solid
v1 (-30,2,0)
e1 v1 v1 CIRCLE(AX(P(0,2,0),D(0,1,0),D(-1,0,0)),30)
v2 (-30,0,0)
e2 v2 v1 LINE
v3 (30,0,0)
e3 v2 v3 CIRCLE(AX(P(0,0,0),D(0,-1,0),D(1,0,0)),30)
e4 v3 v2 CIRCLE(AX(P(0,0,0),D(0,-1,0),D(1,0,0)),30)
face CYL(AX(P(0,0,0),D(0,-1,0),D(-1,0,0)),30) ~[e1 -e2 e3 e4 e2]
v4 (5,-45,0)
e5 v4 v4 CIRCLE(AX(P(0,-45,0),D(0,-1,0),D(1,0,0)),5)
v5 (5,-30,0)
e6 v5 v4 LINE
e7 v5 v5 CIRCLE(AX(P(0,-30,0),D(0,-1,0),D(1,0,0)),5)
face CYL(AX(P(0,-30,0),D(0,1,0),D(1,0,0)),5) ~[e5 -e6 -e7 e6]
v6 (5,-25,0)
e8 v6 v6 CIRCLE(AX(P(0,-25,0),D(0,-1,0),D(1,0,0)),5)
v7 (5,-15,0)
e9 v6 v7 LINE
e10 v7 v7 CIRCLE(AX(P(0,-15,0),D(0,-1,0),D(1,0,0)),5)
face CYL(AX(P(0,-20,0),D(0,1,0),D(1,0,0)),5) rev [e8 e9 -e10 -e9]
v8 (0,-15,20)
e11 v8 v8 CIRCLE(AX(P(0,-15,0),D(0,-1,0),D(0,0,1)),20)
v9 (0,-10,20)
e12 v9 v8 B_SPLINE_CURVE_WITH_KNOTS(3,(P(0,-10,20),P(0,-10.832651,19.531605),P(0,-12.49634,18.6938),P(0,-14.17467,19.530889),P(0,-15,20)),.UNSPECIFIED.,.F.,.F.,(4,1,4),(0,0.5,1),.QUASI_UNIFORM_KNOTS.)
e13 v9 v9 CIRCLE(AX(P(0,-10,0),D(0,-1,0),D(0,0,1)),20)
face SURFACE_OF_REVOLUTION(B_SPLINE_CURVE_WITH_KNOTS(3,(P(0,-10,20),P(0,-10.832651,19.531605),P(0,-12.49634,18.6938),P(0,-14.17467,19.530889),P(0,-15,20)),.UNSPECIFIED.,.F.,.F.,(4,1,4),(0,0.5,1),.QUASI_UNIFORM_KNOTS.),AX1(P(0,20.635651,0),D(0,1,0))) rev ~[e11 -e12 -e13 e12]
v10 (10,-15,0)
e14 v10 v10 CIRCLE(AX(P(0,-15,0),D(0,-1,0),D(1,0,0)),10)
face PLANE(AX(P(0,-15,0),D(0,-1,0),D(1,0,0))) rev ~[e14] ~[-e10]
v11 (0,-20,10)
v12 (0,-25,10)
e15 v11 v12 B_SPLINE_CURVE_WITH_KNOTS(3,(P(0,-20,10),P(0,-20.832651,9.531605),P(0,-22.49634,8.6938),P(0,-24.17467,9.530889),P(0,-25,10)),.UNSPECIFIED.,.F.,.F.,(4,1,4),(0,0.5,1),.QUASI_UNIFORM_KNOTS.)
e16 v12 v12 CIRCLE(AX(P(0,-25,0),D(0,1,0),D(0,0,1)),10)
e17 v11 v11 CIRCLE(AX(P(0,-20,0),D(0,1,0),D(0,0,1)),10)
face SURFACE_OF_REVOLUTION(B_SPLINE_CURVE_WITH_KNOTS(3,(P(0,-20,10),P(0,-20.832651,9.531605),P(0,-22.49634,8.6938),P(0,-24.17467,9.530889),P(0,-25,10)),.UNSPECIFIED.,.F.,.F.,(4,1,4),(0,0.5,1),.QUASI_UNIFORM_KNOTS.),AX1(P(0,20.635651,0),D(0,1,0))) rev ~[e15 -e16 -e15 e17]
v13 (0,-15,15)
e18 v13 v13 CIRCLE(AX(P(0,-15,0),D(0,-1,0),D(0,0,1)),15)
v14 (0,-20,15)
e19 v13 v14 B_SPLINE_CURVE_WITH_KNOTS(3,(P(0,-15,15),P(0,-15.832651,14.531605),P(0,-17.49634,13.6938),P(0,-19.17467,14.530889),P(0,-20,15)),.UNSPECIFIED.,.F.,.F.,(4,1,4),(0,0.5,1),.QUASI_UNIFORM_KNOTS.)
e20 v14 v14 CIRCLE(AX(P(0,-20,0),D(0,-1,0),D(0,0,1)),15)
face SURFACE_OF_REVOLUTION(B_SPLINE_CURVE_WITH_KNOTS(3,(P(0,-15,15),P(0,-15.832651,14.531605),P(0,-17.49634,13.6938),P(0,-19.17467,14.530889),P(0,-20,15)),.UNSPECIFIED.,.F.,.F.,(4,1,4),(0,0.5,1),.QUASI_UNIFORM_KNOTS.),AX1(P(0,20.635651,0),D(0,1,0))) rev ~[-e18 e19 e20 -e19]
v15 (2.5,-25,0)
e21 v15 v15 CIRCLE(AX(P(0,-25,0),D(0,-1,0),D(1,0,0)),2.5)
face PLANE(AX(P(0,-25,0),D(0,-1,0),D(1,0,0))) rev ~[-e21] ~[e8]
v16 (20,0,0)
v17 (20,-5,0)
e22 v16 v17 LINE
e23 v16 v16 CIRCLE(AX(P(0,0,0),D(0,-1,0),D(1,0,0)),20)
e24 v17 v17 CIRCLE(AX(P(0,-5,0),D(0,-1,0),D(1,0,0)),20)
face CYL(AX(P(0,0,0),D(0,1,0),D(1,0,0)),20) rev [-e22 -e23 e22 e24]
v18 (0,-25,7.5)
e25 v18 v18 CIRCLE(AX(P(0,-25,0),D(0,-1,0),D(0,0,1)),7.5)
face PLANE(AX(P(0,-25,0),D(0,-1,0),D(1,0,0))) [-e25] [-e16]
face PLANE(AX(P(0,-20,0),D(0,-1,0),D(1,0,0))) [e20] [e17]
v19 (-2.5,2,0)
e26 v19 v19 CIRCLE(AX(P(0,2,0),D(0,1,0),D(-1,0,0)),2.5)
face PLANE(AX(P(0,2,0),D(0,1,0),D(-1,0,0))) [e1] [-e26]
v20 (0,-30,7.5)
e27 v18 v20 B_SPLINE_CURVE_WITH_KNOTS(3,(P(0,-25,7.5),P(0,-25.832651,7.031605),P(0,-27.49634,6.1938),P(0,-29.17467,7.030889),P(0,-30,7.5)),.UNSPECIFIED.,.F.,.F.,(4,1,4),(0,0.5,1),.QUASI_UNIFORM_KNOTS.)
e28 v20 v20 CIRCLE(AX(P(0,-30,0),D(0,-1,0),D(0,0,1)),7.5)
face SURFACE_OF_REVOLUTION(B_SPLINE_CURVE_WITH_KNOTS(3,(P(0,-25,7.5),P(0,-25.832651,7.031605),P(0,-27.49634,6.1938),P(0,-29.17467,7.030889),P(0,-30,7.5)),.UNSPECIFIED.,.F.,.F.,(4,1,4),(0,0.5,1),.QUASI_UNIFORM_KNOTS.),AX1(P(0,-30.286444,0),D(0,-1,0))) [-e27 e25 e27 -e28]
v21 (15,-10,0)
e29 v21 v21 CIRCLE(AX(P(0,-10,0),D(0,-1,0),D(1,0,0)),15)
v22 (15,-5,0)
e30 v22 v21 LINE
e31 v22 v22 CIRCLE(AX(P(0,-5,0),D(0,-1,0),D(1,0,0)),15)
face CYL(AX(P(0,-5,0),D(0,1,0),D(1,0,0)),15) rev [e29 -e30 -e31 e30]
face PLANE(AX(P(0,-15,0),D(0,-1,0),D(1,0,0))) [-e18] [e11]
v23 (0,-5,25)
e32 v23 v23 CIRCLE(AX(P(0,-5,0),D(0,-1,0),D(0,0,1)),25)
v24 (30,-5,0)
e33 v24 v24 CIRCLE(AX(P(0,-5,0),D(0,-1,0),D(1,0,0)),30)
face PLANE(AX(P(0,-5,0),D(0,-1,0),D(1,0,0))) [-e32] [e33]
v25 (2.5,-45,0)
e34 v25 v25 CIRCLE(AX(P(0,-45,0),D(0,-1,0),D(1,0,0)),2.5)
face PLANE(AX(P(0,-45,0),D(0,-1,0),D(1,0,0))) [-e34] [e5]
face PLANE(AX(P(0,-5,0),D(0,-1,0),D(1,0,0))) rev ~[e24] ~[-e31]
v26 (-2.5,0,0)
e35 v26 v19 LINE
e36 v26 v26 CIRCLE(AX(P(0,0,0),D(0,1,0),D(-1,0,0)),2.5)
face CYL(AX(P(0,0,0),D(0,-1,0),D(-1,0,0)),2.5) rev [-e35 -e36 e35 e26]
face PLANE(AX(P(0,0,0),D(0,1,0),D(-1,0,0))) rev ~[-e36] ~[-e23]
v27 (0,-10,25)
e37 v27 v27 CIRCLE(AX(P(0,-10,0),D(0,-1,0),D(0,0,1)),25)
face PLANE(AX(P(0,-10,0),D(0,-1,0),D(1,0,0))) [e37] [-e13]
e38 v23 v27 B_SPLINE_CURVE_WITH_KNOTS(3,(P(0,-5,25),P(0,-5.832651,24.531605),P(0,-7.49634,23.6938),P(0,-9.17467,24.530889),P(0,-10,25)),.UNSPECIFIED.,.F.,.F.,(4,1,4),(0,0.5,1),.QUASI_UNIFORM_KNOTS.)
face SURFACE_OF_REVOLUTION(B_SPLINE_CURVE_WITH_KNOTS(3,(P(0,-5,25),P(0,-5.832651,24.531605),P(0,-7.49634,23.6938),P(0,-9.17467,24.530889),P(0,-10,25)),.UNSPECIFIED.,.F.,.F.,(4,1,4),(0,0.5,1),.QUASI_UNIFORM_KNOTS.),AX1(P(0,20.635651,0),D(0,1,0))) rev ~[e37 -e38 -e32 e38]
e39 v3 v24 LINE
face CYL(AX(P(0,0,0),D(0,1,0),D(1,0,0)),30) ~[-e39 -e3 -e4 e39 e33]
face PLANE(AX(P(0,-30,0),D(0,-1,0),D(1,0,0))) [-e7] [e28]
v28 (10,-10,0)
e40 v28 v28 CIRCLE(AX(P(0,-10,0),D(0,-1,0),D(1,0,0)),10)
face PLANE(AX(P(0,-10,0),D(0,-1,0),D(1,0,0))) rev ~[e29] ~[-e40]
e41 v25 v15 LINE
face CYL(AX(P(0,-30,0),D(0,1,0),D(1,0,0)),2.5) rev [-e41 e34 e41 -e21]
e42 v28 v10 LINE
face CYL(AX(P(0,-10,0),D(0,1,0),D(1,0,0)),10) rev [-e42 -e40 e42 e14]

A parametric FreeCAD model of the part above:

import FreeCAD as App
import Part
import Sketcher

V = App.Vector
Q = App.Units.Quantity

doc = App.newDocument("Part")
body = doc.addObject("PartDesign::Body", "Body")

sketch1 = body.newObject("Sketcher::SketchObject", "Sketch")
sketch1.AttachmentSupport = (doc.getObject("XZ_Plane"), [""])
sketch1.MapMode = "FlatFace"
sketch1.addGeometry(Part.Circle(V(0, 0, 0), V(0, 0, 1), 30), False)
sketch1.addGeometry(Part.Circle(V(0, 0, 0), V(0, 0, 1), 20), False)
sketch1.addConstraint(Sketcher.Constraint("Coincident", 0, 3, -1, 1))
sketch1.addConstraint(Sketcher.Constraint("Coincident", 1, 3, -1, 1))
sketch1.addConstraint(Sketcher.Constraint("Diameter", 0, Q("60 mm")))
sketch1.addConstraint(Sketcher.Constraint("Diameter", 1, Q("40 mm")))
pad1 = body.newObject("PartDesign::Pad", "Pad")
pad1.Profile = sketch1
pad1.Length = 5

sketch2 = body.newObject("Sketcher::SketchObject", "Sketch001")
sketch2.AttachmentSupport = (doc.getObject("XZ_Plane"), [""])
sketch2.MapMode = "FlatFace"
sketch2.AttachmentOffset = App.Placement(V(0, 0, 5), App.Rotation())
sketch2.addGeometry(Part.Circle(V(0, 0, 0), V(0, 0, 1), 25), False)
sketch2.addGeometry(Part.Circle(V(0, 0, 0), V(0, 0, 1), 15), False)
sketch2.addConstraint(Sketcher.Constraint("Coincident", 0, 3, -1, 1))
sketch2.addConstraint(Sketcher.Constraint("Coincident", 1, 3, -1, 1))
sketch2.addConstraint(Sketcher.Constraint("Diameter", 0, Q("50 mm")))
sketch2.addConstraint(Sketcher.Constraint("Diameter", 1, Q("30 mm")))
pad2 = body.newObject("PartDesign::Pad", "Pad001")
pad2.Profile = sketch2
pad2.Length = 5

sketch3 = body.newObject("Sketcher::SketchObject", "Sketch002")
sketch3.AttachmentSupport = (doc.getObject("XZ_Plane"), [""])
sketch3.MapMode = "FlatFace"
sketch3.AttachmentOffset = App.Placement(V(0, 0, 10), App.Rotation())
sketch3.addGeometry(Part.Circle(V(0, 0, 0), V(0, 0, 1), 20), False)
sketch3.addGeometry(Part.Circle(V(0, 0, 0), V(0, 0, 1), 10), False)
sketch3.addConstraint(Sketcher.Constraint("Coincident", 0, 3, -1, 1))
sketch3.addConstraint(Sketcher.Constraint("Coincident", 1, 3, -1, 1))
sketch3.addConstraint(Sketcher.Constraint("Diameter", 0, Q("40 mm")))
sketch3.addConstraint(Sketcher.Constraint("Diameter", 1, Q("20 mm")))
pad3 = body.newObject("PartDesign::Pad", "Pad002")
pad3.Profile = sketch3
pad3.Length = 5

sketch4 = body.newObject("Sketcher::SketchObject", "Sketch003")
sketch4.AttachmentSupport = (doc.getObject("XZ_Plane"), [""])
sketch4.MapMode = "FlatFace"
sketch4.AttachmentOffset = App.Placement(V(0, 0, 15), App.Rotation())
sketch4.addGeometry(Part.Circle(V(0, 0, 0), V(0, 0, 1), 15), False)
sketch4.addGeometry(Part.Circle(V(0, 0, 0), V(0, 0, 1), 5), False)
sketch4.addConstraint(Sketcher.Constraint("Coincident", 0, 3, -1, 1))
sketch4.addConstraint(Sketcher.Constraint("Coincident", 1, 3, -1, 1))
sketch4.addConstraint(Sketcher.Constraint("Diameter", 0, Q("30 mm")))
sketch4.addConstraint(Sketcher.Constraint("Diameter", 1, Q("10 mm")))
pad4 = body.newObject("PartDesign::Pad", "Pad003")
pad4.Profile = sketch4
pad4.Length = 5

sketch5 = body.newObject("Sketcher::SketchObject", "Sketch004")
sketch5.AttachmentSupport = (doc.getObject("XZ_Plane"), [""])
sketch5.MapMode = "FlatFace"
sketch5.AttachmentOffset = App.Placement(V(0, 0, 20), App.Rotation())
sketch5.addGeometry(Part.Circle(V(0, 0, 0), V(0, 0, 1), 10), False)
sketch5.addGeometry(Part.Circle(V(0, 0, 0), V(0, 0, 1), 5), False)
sketch5.addConstraint(Sketcher.Constraint("Coincident", 0, 3, -1, 1))
sketch5.addConstraint(Sketcher.Constraint("Coincident", 1, 3, -1, 1))
sketch5.addConstraint(Sketcher.Constraint("Diameter", 0, Q("20 mm")))
sketch5.addConstraint(Sketcher.Constraint("Diameter", 1, Q("10 mm")))
pad5 = body.newObject("PartDesign::Pad", "Pad004")
pad5.Profile = sketch5
pad5.Length = 5

sketch6 = body.newObject("Sketcher::SketchObject", "Sketch005")
sketch6.AttachmentSupport = (doc.getObject("YZ_Plane"), [""])
sketch6.MapMode = "FlatFace"
sketch6.addGeometry(Part.BSplineCurve([V(-5, 25, 0), V(-5.832651, 24.531605, 0), V(-7.49634, 23.6938, 0), V(-9.17467, 24.530889, 0), V(-10, 25, 0)], [4, 1, 4], [0, 0.5, 1], False, 3, [1, 1, 1, 1, 1], False), False)
sketch6.addGeometry(Part.LineSegment(V(-5, 25, 0), V(-10, 25, 0)), False)
sketch6.addGeometry(Part.BSplineCurve([V(-10, 20, 0), V(-10.832651, 19.531605, 0), V(-12.49634, 18.6938, 0), V(-14.17467, 19.530889, 0), V(-15, 20, 0)], [4, 1, 4], [0, 0.5, 1], False, 3, [1, 1, 1, 1, 1], False), False)
sketch6.addGeometry(Part.LineSegment(V(-10, 20, 0), V(-15, 20, 0)), False)
sketch6.addGeometry(Part.BSplineCurve([V(-15, 15, 0), V(-15.832651, 14.531605, 0), V(-17.49634, 13.6938, 0), V(-19.17467, 14.530889, 0), V(-20, 15, 0)], [4, 1, 4], [0, 0.5, 1], False, 3, [1, 1, 1, 1, 1], False), False)
sketch6.addGeometry(Part.LineSegment(V(-15, 15, 0), V(-20, 15, 0)), False)
sketch6.addGeometry(Part.BSplineCurve([V(-20, 10, 0), V(-20.832651, 9.531605, 0), V(-22.49634, 8.6938, 0), V(-24.17467, 9.530889, 0), V(-25, 10, 0)], [4, 1, 4], [0, 0.5, 1], False, 3, [1, 1, 1, 1, 1], False), False)
sketch6.addGeometry(Part.LineSegment(V(-20, 10, 0), V(-25, 10, 0)), False)
sketch6.addConstraint(Sketcher.Constraint("Block", 0))
sketch6.addConstraint(Sketcher.Constraint("Block", 2))
sketch6.addConstraint(Sketcher.Constraint("Block", 4))
sketch6.addConstraint(Sketcher.Constraint("Block", 6))
sketch6.addConstraint(Sketcher.Constraint("Coincident", 0, 1, 1, 1))
sketch6.addConstraint(Sketcher.Constraint("Coincident", 1, 2, 0, 2))
sketch6.addConstraint(Sketcher.Constraint("Coincident", 2, 1, 3, 1))
sketch6.addConstraint(Sketcher.Constraint("Coincident", 3, 2, 2, 2))
sketch6.addConstraint(Sketcher.Constraint("Coincident", 4, 1, 5, 1))
sketch6.addConstraint(Sketcher.Constraint("Coincident", 5, 2, 4, 2))
sketch6.addConstraint(Sketcher.Constraint("Coincident", 6, 1, 7, 1))
sketch6.addConstraint(Sketcher.Constraint("Coincident", 7, 2, 6, 2))
groove = body.newObject("PartDesign::Groove", "Groove")
groove.Profile = sketch6
groove.ReferenceAxis = (sketch6, ["H_Axis"])
groove.Angle = 360

sketch7 = body.newObject("Sketcher::SketchObject", "Sketch006")
sketch7.AttachmentSupport = (doc.getObject("XZ_Plane"), [""])
sketch7.MapMode = "FlatFace"
sketch7.AttachmentOffset = App.Placement(V(0, 0, 25), App.Rotation())
sketch7.addGeometry(Part.Circle(V(0, 0, 0), V(0, 0, 1), 7.5), False)
sketch7.addGeometry(Part.Circle(V(0, 0, 0), V(0, 0, 1), 2.5), False)
sketch7.addConstraint(Sketcher.Constraint("Coincident", 0, 3, -1, 1))
sketch7.addConstraint(Sketcher.Constraint("Coincident", 1, 3, -1, 1))
sketch7.addConstraint(Sketcher.Constraint("Diameter", 0, Q("15 mm")))
sketch7.addConstraint(Sketcher.Constraint("Diameter", 1, Q("5 mm")))
pad6 = body.newObject("PartDesign::Pad", "Pad005")
pad6.Profile = sketch7
pad6.Length = 5

sketch8 = body.newObject("Sketcher::SketchObject", "Sketch007")
sketch8.AttachmentSupport = (doc.getObject("XZ_Plane"), [""])
sketch8.MapMode = "FlatFace"
sketch8.AttachmentOffset = App.Placement(V(0, 0, 30), App.Rotation())
sketch8.addGeometry(Part.Circle(V(0, 0, 0), V(0, 0, 1), 5), False)
sketch8.addGeometry(Part.Circle(V(0, 0, 0), V(0, 0, 1), 2.5), False)
sketch8.addConstraint(Sketcher.Constraint("Coincident", 0, 3, -1, 1))
sketch8.addConstraint(Sketcher.Constraint("Coincident", 1, 3, -1, 1))
sketch8.addConstraint(Sketcher.Constraint("Diameter", 0, Q("10 mm")))
sketch8.addConstraint(Sketcher.Constraint("Diameter", 1, Q("5 mm")))
pad7 = body.newObject("PartDesign::Pad", "Pad006")
pad7.Profile = sketch8
pad7.Length = 15

sketch9 = body.newObject("Sketcher::SketchObject", "Sketch008")
sketch9.AttachmentSupport = (doc.getObject("YZ_Plane"), [""])
sketch9.MapMode = "FlatFace"
sketch9.addGeometry(Part.BSplineCurve([V(-25, 7.5, 0), V(-25.832651, 7.031605, 0), V(-27.49634, 6.1938, 0), V(-29.17467, 7.030889, 0), V(-30, 7.5, 0)], [4, 1, 4], [0, 0.5, 1], False, 3, [1, 1, 1, 1, 1], False), False)
sketch9.addGeometry(Part.LineSegment(V(-25, 7.5, 0), V(-30, 7.5, 0)), False)
sketch9.addConstraint(Sketcher.Constraint("Block", 0))
sketch9.addConstraint(Sketcher.Constraint("Coincident", 0, 1, 1, 1))
sketch9.addConstraint(Sketcher.Constraint("Coincident", 1, 2, 0, 2))
groove2 = body.newObject("PartDesign::Groove", "Groove001")
groove2.Profile = sketch9
groove2.ReferenceAxis = (sketch9, ["H_Axis"])
groove2.Angle = 360

sketch10 = body.newObject("Sketcher::SketchObject", "Sketch009")
sketch10.AttachmentSupport = (doc.getObject("XZ_Plane"), [""])
sketch10.MapMode = "FlatFace"
sketch10.addGeometry(Part.Circle(V(0, 0, 0), V(0, 0, 1), 30), False)
sketch10.addGeometry(Part.Circle(V(0, 0, 0), V(0, 0, 1), 2.5), False)
sketch10.addConstraint(Sketcher.Constraint("Coincident", 0, 3, -1, 1))
sketch10.addConstraint(Sketcher.Constraint("Coincident", 1, 3, -1, 1))
sketch10.addConstraint(Sketcher.Constraint("Diameter", 0, Q("60 mm")))
sketch10.addConstraint(Sketcher.Constraint("Diameter", 1, Q("5 mm")))
pad8 = body.newObject("PartDesign::Pad", "Pad007")
pad8.Profile = sketch10
pad8.Length = 2
pad8.Reversed = True

doc.recompute()
